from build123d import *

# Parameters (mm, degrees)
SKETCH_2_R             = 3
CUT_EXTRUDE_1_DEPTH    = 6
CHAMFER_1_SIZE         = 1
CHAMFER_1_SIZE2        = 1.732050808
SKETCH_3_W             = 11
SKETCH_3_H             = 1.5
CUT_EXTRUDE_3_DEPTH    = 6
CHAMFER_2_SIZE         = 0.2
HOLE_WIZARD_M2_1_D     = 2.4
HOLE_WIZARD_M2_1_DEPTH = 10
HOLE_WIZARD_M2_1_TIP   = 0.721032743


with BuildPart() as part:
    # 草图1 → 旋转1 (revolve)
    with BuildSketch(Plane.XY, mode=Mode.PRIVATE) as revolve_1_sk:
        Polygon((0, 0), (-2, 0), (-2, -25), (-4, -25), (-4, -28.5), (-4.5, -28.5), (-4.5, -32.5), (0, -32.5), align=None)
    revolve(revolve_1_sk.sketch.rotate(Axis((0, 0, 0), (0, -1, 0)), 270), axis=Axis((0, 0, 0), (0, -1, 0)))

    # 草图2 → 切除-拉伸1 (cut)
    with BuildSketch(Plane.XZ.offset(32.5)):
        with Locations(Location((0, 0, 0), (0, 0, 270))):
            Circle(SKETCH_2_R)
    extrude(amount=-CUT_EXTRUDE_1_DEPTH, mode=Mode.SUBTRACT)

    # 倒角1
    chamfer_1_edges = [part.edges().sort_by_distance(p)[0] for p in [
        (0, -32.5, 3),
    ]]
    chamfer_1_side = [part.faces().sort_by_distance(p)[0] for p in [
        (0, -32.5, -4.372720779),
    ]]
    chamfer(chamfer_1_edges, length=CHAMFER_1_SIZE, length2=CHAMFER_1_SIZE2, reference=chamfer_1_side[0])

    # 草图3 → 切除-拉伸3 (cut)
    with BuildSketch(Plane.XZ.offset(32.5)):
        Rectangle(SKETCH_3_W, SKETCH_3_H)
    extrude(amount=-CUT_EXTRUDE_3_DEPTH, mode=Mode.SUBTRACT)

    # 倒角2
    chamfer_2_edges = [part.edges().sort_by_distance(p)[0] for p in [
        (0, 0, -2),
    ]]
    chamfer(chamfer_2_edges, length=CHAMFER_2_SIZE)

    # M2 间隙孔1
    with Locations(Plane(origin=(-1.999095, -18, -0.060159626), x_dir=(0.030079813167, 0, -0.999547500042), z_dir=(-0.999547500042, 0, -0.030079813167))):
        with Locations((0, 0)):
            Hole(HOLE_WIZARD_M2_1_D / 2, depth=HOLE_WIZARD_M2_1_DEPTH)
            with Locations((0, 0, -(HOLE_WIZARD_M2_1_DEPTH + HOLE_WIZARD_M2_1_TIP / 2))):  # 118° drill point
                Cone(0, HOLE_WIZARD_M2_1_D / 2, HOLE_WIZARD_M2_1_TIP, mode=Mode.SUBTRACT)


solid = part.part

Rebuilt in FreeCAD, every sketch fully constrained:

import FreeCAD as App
import Part
import Sketcher

V = App.Vector
Q = App.Units.Quantity


def edges_at(feature, points):
    """Names of the edges that pass closest to the given points."""
    edges = feature.Shape.Edges
    near = lambda p: min(range(len(edges)), key=lambda i: edges[i].distToShape(Part.Vertex(*p))[0])
    return sorted({f"Edge{near(p) + 1}" for p in points})

doc = App.newDocument("Part")
body = doc.addObject("PartDesign::Body", "Body")

sketch1 = body.newObject("Sketcher::SketchObject", "Sketch")
sketch1.AttachmentSupport = (doc.getObject("XY_Plane"), [""])
sketch1.MapMode = "FlatFace"
sketch1.addGeometry([
    Part.LineSegment(V(0, 0, 0), V(-2, 0, 0)),
    Part.LineSegment(V(-2, 0, 0), V(-2, -25, 0)),
    Part.LineSegment(V(-2, -25, 0), V(-4, -25, 0)),
    Part.LineSegment(V(-4, -25, 0), V(-4, -28.5, 0)),
    Part.LineSegment(V(-4, -28.5, 0), V(-4.5, -28.5, 0)),
    Part.LineSegment(V(-4.5, -28.5, 0), V(-4.5, -32.5, 0)),
    Part.LineSegment(V(-4.5, -32.5, 0), V(0, -32.5, 0)),
    Part.LineSegment(V(0, -32.5, 0), V(0, 0, 0)),
], False)
sketch1.addConstraint([
    Sketcher.Constraint("Coincident", 0, 2, 1, 1),
    Sketcher.Constraint("Coincident", 1, 2, 2, 1),
    Sketcher.Constraint("Coincident", 2, 2, 3, 1),
    Sketcher.Constraint("Coincident", 3, 2, 4, 1),
    Sketcher.Constraint("Coincident", 4, 2, 5, 1),
    Sketcher.Constraint("Coincident", 5, 2, 6, 1),
    Sketcher.Constraint("Coincident", 6, 2, 7, 1),
    Sketcher.Constraint("Coincident", 7, 2, 0, 1),
    Sketcher.Constraint("Horizontal", 0),
    Sketcher.Constraint("Vertical", 1),
    Sketcher.Constraint("Horizontal", 2),
    Sketcher.Constraint("Vertical", 3),
    Sketcher.Constraint("Horizontal", 4),
    Sketcher.Constraint("Vertical", 5),
    Sketcher.Constraint("Horizontal", 6),
    Sketcher.Constraint("Vertical", 7),
    Sketcher.Constraint("Coincident", 7, 2, -1, 1),
    Sketcher.Constraint("Equal", 0, 2),
    Sketcher.Constraint("DistanceX", 0, 2, 0, 1, Q("2 mm")),
    Sketcher.Constraint("DistanceY", 1, 2, 1, 1, Q("25 mm")),
    Sketcher.Constraint("DistanceY", 5, 2, 5, 1, Q("4 mm")),
    Sketcher.Constraint("DistanceX", 4, 2, 4, 1, Q("0.5 mm")),
    Sketcher.Constraint("DistanceY", 3, 2, 3, 1, Q("3.5 mm")),
])
revolution = body.newObject("PartDesign::Revolution", "Revolution")
revolution.Profile = sketch1
revolution.ReferenceAxis = (sketch1, ["V_Axis"])
revolution.Angle = 360

sketch2 = body.newObject("Sketcher::SketchObject", "Sketch001")
sketch2.AttachmentSupport = (doc.getObject("XZ_Plane"), [""])
sketch2.MapMode = "FlatFace"
sketch2.AttachmentOffset = App.Placement(V(0, 0, 32.5), App.Rotation())
sketch2.addGeometry(Part.Circle(V(0, 0, 0), V(0, 0, 1), 3), False)
sketch2.addConstraint([
    Sketcher.Constraint("Coincident", 0, 3, -1, 1),
    Sketcher.Constraint("Diameter", 0, Q("6 mm")),
])
pocket1 = body.newObject("PartDesign::Pocket", "Pocket")
pocket1.Profile = sketch2
pocket1.Length = 6
doc.recompute()

chamfer = body.newObject("PartDesign::Chamfer", "Chamfer")
chamfer.Base = (pocket1, edges_at(pocket1, [(0, -32.5, 3)]))
chamfer.ChamferType = "Two distances"
chamfer.Size = 1
chamfer.Size2 = 1.732051

sketch3 = body.newObject("Sketcher::SketchObject", "Sketch002")
sketch3.AttachmentSupport = (doc.getObject("XZ_Plane"), [""])
sketch3.MapMode = "FlatFace"
sketch3.AttachmentOffset = App.Placement(V(0, 0, 32.5), App.Rotation())
sketch3.addGeometry([
    Part.LineSegment(V(-5.5, 0.8, 0), V(-5.5, -0.8, 0)),
    Part.LineSegment(V(-5.5, -0.8, 0), V(5.5, -0.8, 0)),
    Part.LineSegment(V(5.5, -0.8, 0), V(5.5, 0.8, 0)),
    Part.LineSegment(V(5.5, 0.8, 0), V(-5.5, 0.8, 0)),
], False)
sketch3.addConstraint([
    Sketcher.Constraint("Coincident", 0, 2, 1, 1),
    Sketcher.Constraint("Coincident", 1, 2, 2, 1),
    Sketcher.Constraint("Coincident", 2, 2, 3, 1),
    Sketcher.Constraint("Coincident", 3, 2, 0, 1),
    Sketcher.Constraint("Vertical", 0),
    Sketcher.Constraint("Horizontal", 1),
    Sketcher.Constraint("Vertical", 2),
    Sketcher.Constraint("Horizontal", 3),
    Sketcher.Constraint("Symmetric", 0, 2, 2, 2, -1, 1),
    Sketcher.Constraint("DistanceX", 1, 1, 1, 2, Q("11 mm")),
    Sketcher.Constraint("DistanceY", 0, 2, 0, 1, Q("1.5 mm")),
])
pocket2 = body.newObject("PartDesign::Pocket", "Pocket001")
pocket2.Profile = sketch3
pocket2.Length = 6
doc.recompute()

chamfer2 = body.newObject("PartDesign::Chamfer", "Chamfer001")
chamfer2.Base = (pocket2, edges_at(pocket2, [(0, 0, -2)]))
chamfer2.Size = 0.2

sketch4 = body.newObject("Sketcher::SketchObject", "Sketch003")
sketch4.Placement = App.Placement(V(-1.999095, 0, -0.06016), App.Rotation(V(0.030079813, 0, -0.9995475), V(0, -1, 0), V(-0.9995475, 0, -0.030079813), "ZXY"))
sketch4.addGeometry(Part.Circle(V(0, 18, 0), V(0, 0, 1), 1.2), False)
sketch4.addConstraint([
    Sketcher.Constraint("PointOnObject", 0, 3, -2),
    Sketcher.Constraint("Diameter", 0, Q("2.4 mm")),
    Sketcher.Constraint("DistanceY", -1, 1, 0, 3, Q("18 mm")),
])
doc.recompute()
hole = body.newObject("PartDesign::Hole", "Hole")
hole.Profile = sketch4
hole.ThreadType = "None"
hole.Diameter = 2.4
hole.DepthType = "Dimension"
hole.Depth = 10
hole.DrillPoint = "Angled"
hole.DrillPointAngle = 118

doc.recompute()
